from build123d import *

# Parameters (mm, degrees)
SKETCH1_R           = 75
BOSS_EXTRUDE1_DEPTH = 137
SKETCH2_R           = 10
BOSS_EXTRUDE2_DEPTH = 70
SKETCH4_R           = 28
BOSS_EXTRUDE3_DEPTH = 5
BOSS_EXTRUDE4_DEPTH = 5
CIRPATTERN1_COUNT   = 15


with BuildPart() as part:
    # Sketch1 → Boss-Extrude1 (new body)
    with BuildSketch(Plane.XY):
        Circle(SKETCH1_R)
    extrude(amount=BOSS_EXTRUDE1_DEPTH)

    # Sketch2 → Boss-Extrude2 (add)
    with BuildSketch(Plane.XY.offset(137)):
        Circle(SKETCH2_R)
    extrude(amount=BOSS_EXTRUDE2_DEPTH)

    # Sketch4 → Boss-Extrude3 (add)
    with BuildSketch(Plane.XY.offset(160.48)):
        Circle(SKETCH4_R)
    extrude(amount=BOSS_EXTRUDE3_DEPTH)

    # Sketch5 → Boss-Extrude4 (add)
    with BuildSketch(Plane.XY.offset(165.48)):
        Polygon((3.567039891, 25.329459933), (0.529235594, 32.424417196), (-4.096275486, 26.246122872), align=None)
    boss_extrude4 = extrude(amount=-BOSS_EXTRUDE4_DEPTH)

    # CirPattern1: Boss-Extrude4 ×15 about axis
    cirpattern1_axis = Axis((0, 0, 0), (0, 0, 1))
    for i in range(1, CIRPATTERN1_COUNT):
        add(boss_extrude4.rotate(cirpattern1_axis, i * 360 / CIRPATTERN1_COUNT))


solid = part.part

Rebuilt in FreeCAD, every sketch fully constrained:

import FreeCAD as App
import Part
import Sketcher

V = App.Vector


def add_polygon(sketch, points):
    """Adds a closed chain of lines whose ends are joined by coincident constraints."""
    first, n = sketch.GeometryCount, len(points)
    for a, b in zip(points, points[1:] + points[:1]):
        sketch.addGeometry(Part.LineSegment(App.Vector(*a, 0), App.Vector(*b, 0)), False)
    for i in range(n):
        sketch.addConstraint(Sketcher.Constraint("Coincident", first + i, 2, first + (i + 1) % n, 1))

doc = App.newDocument("Part")
body = doc.addObject("PartDesign::Body", "Body")

sketch1 = body.newObject("Sketcher::SketchObject", "Sketch")
sketch1.AttachmentSupport = (doc.getObject("XY_Plane"), [""])
sketch1.MapMode = "FlatFace"
sketch1.addGeometry(Part.Circle(V(0, 0, 0), V(0, 0, 1), 75), False)
sketch1.addConstraint([
    Sketcher.Constraint("Coincident", 0, 3, -1, 1),
    Sketcher.Constraint("Diameter", 0, 150.0),
])
pad1 = body.newObject("PartDesign::Pad", "Pad")
pad1.Profile = sketch1
pad1.Length = 137

sketch2 = body.newObject("Sketcher::SketchObject", "Sketch001")
sketch2.AttachmentSupport = (doc.getObject("XY_Plane"), [""])
sketch2.MapMode = "FlatFace"
sketch2.AttachmentOffset = App.Placement(V(0, 0, 137), App.Rotation())
sketch2.addGeometry(Part.Circle(V(0, 0, 0), V(0, 0, 1), 10), False)
sketch2.addConstraint([
    Sketcher.Constraint("Coincident", 0, 3, -1, 1),
    Sketcher.Constraint("Diameter", 0, 20.0),
])
pad2 = body.newObject("PartDesign::Pad", "Pad001")
pad2.Profile = sketch2
pad2.Length = 70

sketch3 = body.newObject("Sketcher::SketchObject", "Sketch002")
sketch3.AttachmentSupport = (doc.getObject("XY_Plane"), [""])
sketch3.MapMode = "FlatFace"
sketch3.AttachmentOffset = App.Placement(V(0, 0, 160.48), App.Rotation())
sketch3.addGeometry(Part.Circle(V(0, 0, 0), V(0, 0, 1), 28), False)
sketch3.addConstraint([
    Sketcher.Constraint("Coincident", 0, 3, -1, 1),
    Sketcher.Constraint("Diameter", 0, 56.0),
])
pad3 = body.newObject("PartDesign::Pad", "Pad002")
pad3.Profile = sketch3
pad3.Length = 5

sketch4 = body.newObject("Sketcher::SketchObject", "Sketch003")
sketch4.AttachmentSupport = (doc.getObject("XY_Plane"), [""])
sketch4.MapMode = "FlatFace"
sketch4.AttachmentOffset = App.Placement(V(0, 0, 165.48), App.Rotation())
add_polygon(sketch4, [(3.56704, 25.32946), (0.529236, 32.424417), (-4.096275, 26.246123)])
sketch4.addConstraint([
    Sketcher.Constraint("Equal", 0, 1),
    Sketcher.Constraint("Equal", 1, 2),
    Sketcher.Constraint("DistanceX", -1, 1, 2, 2, 3.56704),
    Sketcher.Constraint("DistanceY", -1, 1, 2, 2, 25.32946),
    Sketcher.Constraint("DistanceX", 1, 2, 0, 2, 4.625511),
    Sketcher.Constraint("Distance", 0, 7.717945),
])
pad4 = body.newObject("PartDesign::Pad", "Pad003")
pad4.Profile = sketch4
pad4.Length = 5
pad4.Reversed = True
doc.recompute()

polarpattern = body.newObject("PartDesign::PolarPattern", "PolarPattern")
polarpattern.Originals = [pad4]
polarpattern.Axis = (doc.getObject("Z_Axis"), [""])
polarpattern.Angle = 360
polarpattern.Occurrences = 15
body.Tip = polarpattern

doc.recompute()
